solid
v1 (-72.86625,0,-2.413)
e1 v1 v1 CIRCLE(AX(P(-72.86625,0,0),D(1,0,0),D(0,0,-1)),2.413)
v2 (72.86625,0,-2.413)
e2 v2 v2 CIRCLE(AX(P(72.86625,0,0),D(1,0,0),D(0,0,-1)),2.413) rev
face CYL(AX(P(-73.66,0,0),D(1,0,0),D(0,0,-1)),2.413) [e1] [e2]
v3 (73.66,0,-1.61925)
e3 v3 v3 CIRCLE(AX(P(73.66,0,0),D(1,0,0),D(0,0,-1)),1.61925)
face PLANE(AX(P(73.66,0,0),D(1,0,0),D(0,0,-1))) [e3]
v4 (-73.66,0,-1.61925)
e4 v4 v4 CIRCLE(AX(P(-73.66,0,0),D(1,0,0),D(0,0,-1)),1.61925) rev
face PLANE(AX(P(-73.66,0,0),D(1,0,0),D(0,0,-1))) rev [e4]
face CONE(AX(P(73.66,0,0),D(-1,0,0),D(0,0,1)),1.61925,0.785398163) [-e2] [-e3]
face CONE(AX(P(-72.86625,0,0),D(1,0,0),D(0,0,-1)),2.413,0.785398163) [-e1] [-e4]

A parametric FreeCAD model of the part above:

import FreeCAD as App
import Part
import Sketcher

V = App.Vector
Q = App.Units.Quantity


def edges_at(feature, points):
    """Names of the edges that pass closest to the given points."""
    edges = feature.Shape.Edges
    near = lambda p: min(range(len(edges)), key=lambda i: edges[i].distToShape(Part.Vertex(*p))[0])
    return sorted({f"Edge{near(p) + 1}" for p in points})

doc = App.newDocument("Part")
body = doc.addObject("PartDesign::Body", "Body")

# Sketch on YZ plane
sketch1 = body.newObject("Sketcher::SketchObject", "Sketch")
sketch1.AttachmentSupport = (doc.getObject("YZ_Plane"), [""])
sketch1.MapMode = "FlatFace"
sketch1.addGeometry(Part.Circle(V(0, 0, 0), V(0, 0, 1), 2.4), False)
sketch1.addConstraint([
    Sketcher.Constraint("Coincident", 0, 3, -1, 1),
    Sketcher.Constraint("Diameter", 0, Q("0.19 in")),
])
pad1 = body.newObject("PartDesign::Pad", "Pad")
pad1.Profile = sketch1
pad1.Type = "TwoLengths"
pad1.Length = Q("2.9 in")
pad1.Length2 = Q("2.9 in")
doc.recompute()

chamfer = body.newObject("PartDesign::Chamfer", "Chamfer")
chamfer.Base = (pad1, edges_at(pad1, [(-73.66, 0, 2.413), (73.66, 0, 2.413)]))
chamfer.Size = Q("0.03125 in")

doc.recompute()
